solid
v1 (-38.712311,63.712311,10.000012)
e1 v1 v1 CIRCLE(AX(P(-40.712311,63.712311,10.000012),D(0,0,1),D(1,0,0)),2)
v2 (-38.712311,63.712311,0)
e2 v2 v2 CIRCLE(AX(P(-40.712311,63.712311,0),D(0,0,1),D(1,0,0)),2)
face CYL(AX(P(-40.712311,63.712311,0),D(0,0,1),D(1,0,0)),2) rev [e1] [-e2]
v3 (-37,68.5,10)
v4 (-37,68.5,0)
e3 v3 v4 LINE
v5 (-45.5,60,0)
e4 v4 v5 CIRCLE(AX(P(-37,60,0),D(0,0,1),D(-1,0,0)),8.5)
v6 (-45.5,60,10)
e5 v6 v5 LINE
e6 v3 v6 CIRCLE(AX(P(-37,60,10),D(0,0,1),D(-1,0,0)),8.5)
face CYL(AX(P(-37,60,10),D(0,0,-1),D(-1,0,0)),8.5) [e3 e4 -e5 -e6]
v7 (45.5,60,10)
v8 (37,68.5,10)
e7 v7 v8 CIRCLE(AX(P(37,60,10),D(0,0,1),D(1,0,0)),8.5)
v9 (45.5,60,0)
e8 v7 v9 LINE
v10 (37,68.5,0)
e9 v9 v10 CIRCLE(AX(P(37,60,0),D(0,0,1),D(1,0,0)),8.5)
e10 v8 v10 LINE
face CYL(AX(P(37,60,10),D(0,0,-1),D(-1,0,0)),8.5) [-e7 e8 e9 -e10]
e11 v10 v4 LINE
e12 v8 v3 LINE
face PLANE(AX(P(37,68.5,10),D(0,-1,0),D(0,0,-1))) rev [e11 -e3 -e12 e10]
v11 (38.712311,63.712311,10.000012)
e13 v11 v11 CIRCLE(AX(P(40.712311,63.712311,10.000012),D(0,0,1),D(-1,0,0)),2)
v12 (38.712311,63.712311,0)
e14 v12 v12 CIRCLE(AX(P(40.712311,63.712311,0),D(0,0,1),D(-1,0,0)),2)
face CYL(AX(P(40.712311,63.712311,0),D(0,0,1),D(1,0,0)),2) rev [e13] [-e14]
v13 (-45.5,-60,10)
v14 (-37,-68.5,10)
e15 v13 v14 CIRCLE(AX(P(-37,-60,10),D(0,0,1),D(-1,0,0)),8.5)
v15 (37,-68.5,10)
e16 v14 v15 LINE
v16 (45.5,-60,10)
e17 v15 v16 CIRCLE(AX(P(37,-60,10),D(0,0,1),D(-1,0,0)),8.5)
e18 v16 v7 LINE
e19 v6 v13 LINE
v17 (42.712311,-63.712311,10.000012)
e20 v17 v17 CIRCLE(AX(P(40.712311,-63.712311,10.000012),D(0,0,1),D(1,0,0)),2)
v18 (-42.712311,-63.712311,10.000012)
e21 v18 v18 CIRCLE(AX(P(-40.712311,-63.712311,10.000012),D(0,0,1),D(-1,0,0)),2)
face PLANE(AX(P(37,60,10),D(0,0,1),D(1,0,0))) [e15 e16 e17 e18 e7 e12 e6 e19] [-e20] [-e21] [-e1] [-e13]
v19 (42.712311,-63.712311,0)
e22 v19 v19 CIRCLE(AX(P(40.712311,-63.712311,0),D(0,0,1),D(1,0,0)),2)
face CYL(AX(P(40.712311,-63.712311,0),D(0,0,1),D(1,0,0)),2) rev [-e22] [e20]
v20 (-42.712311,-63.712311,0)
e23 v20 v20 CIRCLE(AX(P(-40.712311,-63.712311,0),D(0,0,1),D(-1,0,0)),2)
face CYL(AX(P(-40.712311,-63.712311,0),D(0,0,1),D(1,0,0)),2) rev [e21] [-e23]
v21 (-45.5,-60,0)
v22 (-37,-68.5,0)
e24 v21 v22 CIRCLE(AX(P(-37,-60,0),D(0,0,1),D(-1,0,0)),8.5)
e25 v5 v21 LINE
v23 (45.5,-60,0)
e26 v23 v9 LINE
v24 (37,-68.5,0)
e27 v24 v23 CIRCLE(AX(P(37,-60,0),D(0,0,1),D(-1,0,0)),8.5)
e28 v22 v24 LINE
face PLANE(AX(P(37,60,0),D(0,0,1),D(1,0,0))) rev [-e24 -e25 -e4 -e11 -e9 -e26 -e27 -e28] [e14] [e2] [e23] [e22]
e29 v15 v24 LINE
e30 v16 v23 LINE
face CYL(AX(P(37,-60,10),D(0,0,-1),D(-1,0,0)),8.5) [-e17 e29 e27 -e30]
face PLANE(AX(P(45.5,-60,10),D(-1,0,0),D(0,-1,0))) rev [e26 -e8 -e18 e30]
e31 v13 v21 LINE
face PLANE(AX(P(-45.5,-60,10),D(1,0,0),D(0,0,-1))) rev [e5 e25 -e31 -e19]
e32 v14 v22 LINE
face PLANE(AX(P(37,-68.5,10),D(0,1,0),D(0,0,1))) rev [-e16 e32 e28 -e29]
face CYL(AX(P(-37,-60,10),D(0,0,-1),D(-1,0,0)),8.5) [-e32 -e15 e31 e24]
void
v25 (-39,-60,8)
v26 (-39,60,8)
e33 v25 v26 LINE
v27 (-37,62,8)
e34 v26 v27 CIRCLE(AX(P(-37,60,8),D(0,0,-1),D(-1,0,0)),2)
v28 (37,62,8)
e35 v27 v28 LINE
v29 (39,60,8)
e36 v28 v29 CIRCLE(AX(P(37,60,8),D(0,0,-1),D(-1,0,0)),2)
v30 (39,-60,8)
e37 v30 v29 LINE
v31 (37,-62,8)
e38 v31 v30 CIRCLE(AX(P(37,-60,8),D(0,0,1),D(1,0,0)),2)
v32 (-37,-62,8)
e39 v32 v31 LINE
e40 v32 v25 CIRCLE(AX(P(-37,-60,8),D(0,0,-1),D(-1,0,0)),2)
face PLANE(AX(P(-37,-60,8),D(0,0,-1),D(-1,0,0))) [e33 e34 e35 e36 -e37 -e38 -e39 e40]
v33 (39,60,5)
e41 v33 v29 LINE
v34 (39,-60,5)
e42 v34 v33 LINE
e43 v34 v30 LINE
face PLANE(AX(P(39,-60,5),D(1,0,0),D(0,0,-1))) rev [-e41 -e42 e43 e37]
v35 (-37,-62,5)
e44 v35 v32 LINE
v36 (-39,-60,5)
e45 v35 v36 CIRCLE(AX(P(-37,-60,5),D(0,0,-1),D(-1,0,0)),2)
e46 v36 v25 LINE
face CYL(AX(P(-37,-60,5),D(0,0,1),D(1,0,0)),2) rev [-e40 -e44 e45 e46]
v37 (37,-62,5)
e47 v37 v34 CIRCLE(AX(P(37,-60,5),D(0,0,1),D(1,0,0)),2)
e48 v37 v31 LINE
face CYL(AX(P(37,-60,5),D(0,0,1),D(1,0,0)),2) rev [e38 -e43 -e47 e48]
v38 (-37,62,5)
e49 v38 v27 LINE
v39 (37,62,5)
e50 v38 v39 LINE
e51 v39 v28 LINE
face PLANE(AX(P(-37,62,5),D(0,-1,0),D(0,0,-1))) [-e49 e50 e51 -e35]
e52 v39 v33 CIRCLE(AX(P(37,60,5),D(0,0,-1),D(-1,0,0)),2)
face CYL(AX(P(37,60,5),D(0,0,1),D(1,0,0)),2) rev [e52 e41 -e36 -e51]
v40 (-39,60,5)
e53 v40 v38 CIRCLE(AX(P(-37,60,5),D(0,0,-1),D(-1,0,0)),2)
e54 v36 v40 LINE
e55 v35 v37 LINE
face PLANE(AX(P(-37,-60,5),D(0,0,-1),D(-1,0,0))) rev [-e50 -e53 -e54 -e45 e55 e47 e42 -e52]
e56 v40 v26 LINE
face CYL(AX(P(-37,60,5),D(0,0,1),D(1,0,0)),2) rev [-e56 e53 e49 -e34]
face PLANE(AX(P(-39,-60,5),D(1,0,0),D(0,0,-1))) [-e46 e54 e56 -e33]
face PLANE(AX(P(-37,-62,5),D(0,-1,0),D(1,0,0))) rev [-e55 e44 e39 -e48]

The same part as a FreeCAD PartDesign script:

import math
import FreeCAD as App
import Part
import Sketcher
from FreeCAD import Vector

doc = App.newDocument("Part")
params = doc.addObject("Spreadsheet::Sheet", "Params")
for row, (alias, value) in enumerate([
    ("sketch1_radius", "8.5 mm"),
    ("sketch1_width", "74 mm"),
    ("sketch1_height", "120 mm"),
    ("pad1_length", "10 mm"),
    ("sketch2_radius", "2 mm"),
    ("sketch2_width", "74 mm"),
    ("sketch2_height", "120 mm"),
    ("pocket1_length", "3 mm"),
    ("sketch3_diameter", "4 mm"),
], start=1):
    params.set(f"A{row}", alias)
    params.set(f"B{row}", "=" + value)
    params.setAlias(f"B{row}", alias)

body = doc.addObject("PartDesign::Body", "Body")

# Sketch on XY plane
sketch1 = body.newObject("Sketcher::SketchObject", "Sketch")
sketch1.AttachmentSupport = (doc.getObject("XY_Plane"), [""])
sketch1.MapMode = "FlatFace"
sketch1.addGeometry(Part.LineSegment(Vector(46, -60, 0), Vector(46, 60, 0)), False)
sketch1.addGeometry(Part.ArcOfCircle(Part.Circle(Vector(37, 60, 0), Vector(0, 0, 1), 8), math.radians(0), math.radians(90)), False)
sketch1.addGeometry(Part.LineSegment(Vector(37, 68, 0), Vector(-37, 68, 0)), False)
sketch1.addGeometry(Part.ArcOfCircle(Part.Circle(Vector(-37, 60, 0), Vector(0, 0, 1), 8), math.radians(90), math.radians(180)), False)
sketch1.addGeometry(Part.LineSegment(Vector(-46, 60, 0), Vector(-46, -60, 0)), False)
sketch1.addGeometry(Part.ArcOfCircle(Part.Circle(Vector(-37, -60, 0), Vector(0, 0, 1), 8), math.radians(180), math.radians(270)), False)
sketch1.addGeometry(Part.LineSegment(Vector(-37, -68, 0), Vector(37, -68, 0)), False)
sketch1.addGeometry(Part.ArcOfCircle(Part.Circle(Vector(37, -60, 0), Vector(0, 0, 1), 8), math.radians(-90), math.radians(0)), False)
sketch1.addConstraint(Sketcher.Constraint("Tangent", 0, 2, 1, 1))
sketch1.addConstraint(Sketcher.Constraint("Tangent", 1, 2, 2, 1))
sketch1.addConstraint(Sketcher.Constraint("Tangent", 2, 2, 3, 1))
sketch1.addConstraint(Sketcher.Constraint("Tangent", 3, 2, 4, 1))
sketch1.addConstraint(Sketcher.Constraint("Tangent", 4, 2, 5, 1))
sketch1.addConstraint(Sketcher.Constraint("Tangent", 5, 2, 6, 1))
sketch1.addConstraint(Sketcher.Constraint("Tangent", 6, 2, 7, 1))
sketch1.addConstraint(Sketcher.Constraint("Tangent", 7, 2, 0, 1))
sketch1.addConstraint(Sketcher.Constraint("Vertical", 0))
sketch1.addConstraint(Sketcher.Constraint("Horizontal", 2))
sketch1.addConstraint(Sketcher.Constraint("Vertical", 4))
sketch1.addConstraint(Sketcher.Constraint("Horizontal", 6))
sketch1.addConstraint(Sketcher.Constraint("Equal", 1, 3))
sketch1.addConstraint(Sketcher.Constraint("Equal", 3, 5))
sketch1.addConstraint(Sketcher.Constraint("Equal", 5, 7))
sketch1.addConstraint(Sketcher.Constraint("Symmetric", 1, 3, 5, 3, -1, 1))
sketch1.addConstraint(Sketcher.Constraint("Radius", 1, 8.5))
sketch1.addConstraint(Sketcher.Constraint("DistanceX", 2, 2, 2, 1, 74.0))
sketch1.addConstraint(Sketcher.Constraint("DistanceY", 0, 1, 0, 2, 120.0))
sketch1.setExpression("Constraints[16]", "Params.sketch1_radius")
sketch1.setExpression("Constraints[17]", "Params.sketch1_width")
sketch1.setExpression("Constraints[18]", "Params.sketch1_height")
pad1 = body.newObject("PartDesign::Pad", "Pad")
pad1.Profile = sketch1
pad1.setExpression("Length", "Params.pad1_length")

# Sketch on XY plane
sketch2 = body.newObject("Sketcher::SketchObject", "Sketch001")
sketch2.AttachmentSupport = (doc.getObject("XY_Plane"), [""])
sketch2.MapMode = "FlatFace"
sketch2.AttachmentOffset = App.Placement(Vector(0, 0, 8), App.Rotation())
sketch2.addGeometry(Part.LineSegment(Vector(-37, -62, 0), Vector(37, -62, 0)), False)
sketch2.addGeometry(Part.ArcOfCircle(Part.Circle(Vector(37, -60, 0), Vector(0, 0, 1), 2), math.radians(-90), math.radians(0)), False)
sketch2.addGeometry(Part.LineSegment(Vector(39, -60, 0), Vector(39, 60, 0)), False)
sketch2.addGeometry(Part.ArcOfCircle(Part.Circle(Vector(37, 60, 0), Vector(0, 0, 1), 2), math.radians(0), math.radians(90)), False)
sketch2.addGeometry(Part.LineSegment(Vector(37, 62, 0), Vector(-37, 62, 0)), False)
sketch2.addGeometry(Part.ArcOfCircle(Part.Circle(Vector(-37, 60, 0), Vector(0, 0, 1), 2), math.radians(90), math.radians(180)), False)
sketch2.addGeometry(Part.LineSegment(Vector(-39, 60, 0), Vector(-39, -60, 0)), False)
sketch2.addGeometry(Part.ArcOfCircle(Part.Circle(Vector(-37, -60, 0), Vector(0, 0, 1), 2), math.radians(-180), math.radians(-90)), False)
sketch2.addConstraint(Sketcher.Constraint("Tangent", 0, 2, 1, 1))
sketch2.addConstraint(Sketcher.Constraint("Tangent", 1, 2, 2, 1))
sketch2.addConstraint(Sketcher.Constraint("Tangent", 2, 2, 3, 1))
sketch2.addConstraint(Sketcher.Constraint("Tangent", 3, 2, 4, 1))
sketch2.addConstraint(Sketcher.Constraint("Tangent", 4, 2, 5, 1))
sketch2.addConstraint(Sketcher.Constraint("Tangent", 5, 2, 6, 1))
sketch2.addConstraint(Sketcher.Constraint("Tangent", 6, 2, 7, 1))
sketch2.addConstraint(Sketcher.Constraint("Tangent", 7, 2, 0, 1))
sketch2.addConstraint(Sketcher.Constraint("Horizontal", 0))
sketch2.addConstraint(Sketcher.Constraint("Vertical", 2))
sketch2.addConstraint(Sketcher.Constraint("Horizontal", 4))
sketch2.addConstraint(Sketcher.Constraint("Vertical", 6))
sketch2.addConstraint(Sketcher.Constraint("Equal", 1, 3))
sketch2.addConstraint(Sketcher.Constraint("Equal", 3, 5))
sketch2.addConstraint(Sketcher.Constraint("Equal", 5, 7))
sketch2.addConstraint(Sketcher.Constraint("Symmetric", 1, 3, 5, 3, -1, 1))
sketch2.addConstraint(Sketcher.Constraint("Radius", 1, 2.0))
sketch2.addConstraint(Sketcher.Constraint("DistanceX", 0, 1, 0, 2, 74.0))
sketch2.addConstraint(Sketcher.Constraint("DistanceY", 2, 1, 2, 2, 120.0))
sketch2.setExpression("Constraints[16]", "Params.sketch2_radius")
sketch2.setExpression("Constraints[17]", "Params.sketch2_width")
sketch2.setExpression("Constraints[18]", "Params.sketch2_height")
pocket1 = body.newObject("PartDesign::Pocket", "Pocket")
pocket1.Profile = sketch2
pocket1.setExpression("Length", "Params.pocket1_length")

# Sketch on XY plane
sketch3 = body.newObject("Sketcher::SketchObject", "Sketch002")
sketch3.AttachmentSupport = (doc.getObject("XY_Plane"), [""])
sketch3.MapMode = "FlatFace"
sketch3.AttachmentOffset = App.Placement(Vector(0, 0, 10), App.Rotation())
sketch3.addGeometry(Part.Circle(Vector(-40.7, 63.7, 0), Vector(0, 0, 1), 2), False)
sketch3.addGeometry(Part.Circle(Vector(-40.7, -63.7, 0), Vector(0, 0, 1), 2), False)
sketch3.addGeometry(Part.Circle(Vector(40.7, 63.7, 0), Vector(0, 0, 1), 2), False)
sketch3.addGeometry(Part.Circle(Vector(40.7, -63.7, 0), Vector(0, 0, 1), 2), False)
sketch3.addConstraint(Sketcher.Constraint("Equal", 0, 1))
sketch3.addConstraint(Sketcher.Constraint("Equal", 1, 2))
sketch3.addConstraint(Sketcher.Constraint("Equal", 2, 3))
sketch3.addConstraint(Sketcher.Constraint("Symmetric", 1, 3, 2, 3, -1, 1))
sketch3.addConstraint(Sketcher.Constraint("Symmetric", 0, 3, 3, 3, -1, 1))
sketch3.addConstraint(Sketcher.Constraint("Symmetric", 0, 3, 2, 3, -2))
sketch3.addConstraint(Sketcher.Constraint("Diameter", 0, 4.0))
sketch3.addConstraint(Sketcher.Constraint("DistanceX", 0, 3, -1, 1, 40.712311))
sketch3.addConstraint(Sketcher.Constraint("DistanceY", -1, 1, 0, 3, 63.712311))
sketch3.setExpression("Constraints[6]", "Params.sketch3_diameter")
pocket2 = body.newObject("PartDesign::Pocket", "Pocket001")
pocket2.Profile = sketch3
pocket2.Type = "ThroughAll"
pocket2.Midplane = True

doc.recompute()
